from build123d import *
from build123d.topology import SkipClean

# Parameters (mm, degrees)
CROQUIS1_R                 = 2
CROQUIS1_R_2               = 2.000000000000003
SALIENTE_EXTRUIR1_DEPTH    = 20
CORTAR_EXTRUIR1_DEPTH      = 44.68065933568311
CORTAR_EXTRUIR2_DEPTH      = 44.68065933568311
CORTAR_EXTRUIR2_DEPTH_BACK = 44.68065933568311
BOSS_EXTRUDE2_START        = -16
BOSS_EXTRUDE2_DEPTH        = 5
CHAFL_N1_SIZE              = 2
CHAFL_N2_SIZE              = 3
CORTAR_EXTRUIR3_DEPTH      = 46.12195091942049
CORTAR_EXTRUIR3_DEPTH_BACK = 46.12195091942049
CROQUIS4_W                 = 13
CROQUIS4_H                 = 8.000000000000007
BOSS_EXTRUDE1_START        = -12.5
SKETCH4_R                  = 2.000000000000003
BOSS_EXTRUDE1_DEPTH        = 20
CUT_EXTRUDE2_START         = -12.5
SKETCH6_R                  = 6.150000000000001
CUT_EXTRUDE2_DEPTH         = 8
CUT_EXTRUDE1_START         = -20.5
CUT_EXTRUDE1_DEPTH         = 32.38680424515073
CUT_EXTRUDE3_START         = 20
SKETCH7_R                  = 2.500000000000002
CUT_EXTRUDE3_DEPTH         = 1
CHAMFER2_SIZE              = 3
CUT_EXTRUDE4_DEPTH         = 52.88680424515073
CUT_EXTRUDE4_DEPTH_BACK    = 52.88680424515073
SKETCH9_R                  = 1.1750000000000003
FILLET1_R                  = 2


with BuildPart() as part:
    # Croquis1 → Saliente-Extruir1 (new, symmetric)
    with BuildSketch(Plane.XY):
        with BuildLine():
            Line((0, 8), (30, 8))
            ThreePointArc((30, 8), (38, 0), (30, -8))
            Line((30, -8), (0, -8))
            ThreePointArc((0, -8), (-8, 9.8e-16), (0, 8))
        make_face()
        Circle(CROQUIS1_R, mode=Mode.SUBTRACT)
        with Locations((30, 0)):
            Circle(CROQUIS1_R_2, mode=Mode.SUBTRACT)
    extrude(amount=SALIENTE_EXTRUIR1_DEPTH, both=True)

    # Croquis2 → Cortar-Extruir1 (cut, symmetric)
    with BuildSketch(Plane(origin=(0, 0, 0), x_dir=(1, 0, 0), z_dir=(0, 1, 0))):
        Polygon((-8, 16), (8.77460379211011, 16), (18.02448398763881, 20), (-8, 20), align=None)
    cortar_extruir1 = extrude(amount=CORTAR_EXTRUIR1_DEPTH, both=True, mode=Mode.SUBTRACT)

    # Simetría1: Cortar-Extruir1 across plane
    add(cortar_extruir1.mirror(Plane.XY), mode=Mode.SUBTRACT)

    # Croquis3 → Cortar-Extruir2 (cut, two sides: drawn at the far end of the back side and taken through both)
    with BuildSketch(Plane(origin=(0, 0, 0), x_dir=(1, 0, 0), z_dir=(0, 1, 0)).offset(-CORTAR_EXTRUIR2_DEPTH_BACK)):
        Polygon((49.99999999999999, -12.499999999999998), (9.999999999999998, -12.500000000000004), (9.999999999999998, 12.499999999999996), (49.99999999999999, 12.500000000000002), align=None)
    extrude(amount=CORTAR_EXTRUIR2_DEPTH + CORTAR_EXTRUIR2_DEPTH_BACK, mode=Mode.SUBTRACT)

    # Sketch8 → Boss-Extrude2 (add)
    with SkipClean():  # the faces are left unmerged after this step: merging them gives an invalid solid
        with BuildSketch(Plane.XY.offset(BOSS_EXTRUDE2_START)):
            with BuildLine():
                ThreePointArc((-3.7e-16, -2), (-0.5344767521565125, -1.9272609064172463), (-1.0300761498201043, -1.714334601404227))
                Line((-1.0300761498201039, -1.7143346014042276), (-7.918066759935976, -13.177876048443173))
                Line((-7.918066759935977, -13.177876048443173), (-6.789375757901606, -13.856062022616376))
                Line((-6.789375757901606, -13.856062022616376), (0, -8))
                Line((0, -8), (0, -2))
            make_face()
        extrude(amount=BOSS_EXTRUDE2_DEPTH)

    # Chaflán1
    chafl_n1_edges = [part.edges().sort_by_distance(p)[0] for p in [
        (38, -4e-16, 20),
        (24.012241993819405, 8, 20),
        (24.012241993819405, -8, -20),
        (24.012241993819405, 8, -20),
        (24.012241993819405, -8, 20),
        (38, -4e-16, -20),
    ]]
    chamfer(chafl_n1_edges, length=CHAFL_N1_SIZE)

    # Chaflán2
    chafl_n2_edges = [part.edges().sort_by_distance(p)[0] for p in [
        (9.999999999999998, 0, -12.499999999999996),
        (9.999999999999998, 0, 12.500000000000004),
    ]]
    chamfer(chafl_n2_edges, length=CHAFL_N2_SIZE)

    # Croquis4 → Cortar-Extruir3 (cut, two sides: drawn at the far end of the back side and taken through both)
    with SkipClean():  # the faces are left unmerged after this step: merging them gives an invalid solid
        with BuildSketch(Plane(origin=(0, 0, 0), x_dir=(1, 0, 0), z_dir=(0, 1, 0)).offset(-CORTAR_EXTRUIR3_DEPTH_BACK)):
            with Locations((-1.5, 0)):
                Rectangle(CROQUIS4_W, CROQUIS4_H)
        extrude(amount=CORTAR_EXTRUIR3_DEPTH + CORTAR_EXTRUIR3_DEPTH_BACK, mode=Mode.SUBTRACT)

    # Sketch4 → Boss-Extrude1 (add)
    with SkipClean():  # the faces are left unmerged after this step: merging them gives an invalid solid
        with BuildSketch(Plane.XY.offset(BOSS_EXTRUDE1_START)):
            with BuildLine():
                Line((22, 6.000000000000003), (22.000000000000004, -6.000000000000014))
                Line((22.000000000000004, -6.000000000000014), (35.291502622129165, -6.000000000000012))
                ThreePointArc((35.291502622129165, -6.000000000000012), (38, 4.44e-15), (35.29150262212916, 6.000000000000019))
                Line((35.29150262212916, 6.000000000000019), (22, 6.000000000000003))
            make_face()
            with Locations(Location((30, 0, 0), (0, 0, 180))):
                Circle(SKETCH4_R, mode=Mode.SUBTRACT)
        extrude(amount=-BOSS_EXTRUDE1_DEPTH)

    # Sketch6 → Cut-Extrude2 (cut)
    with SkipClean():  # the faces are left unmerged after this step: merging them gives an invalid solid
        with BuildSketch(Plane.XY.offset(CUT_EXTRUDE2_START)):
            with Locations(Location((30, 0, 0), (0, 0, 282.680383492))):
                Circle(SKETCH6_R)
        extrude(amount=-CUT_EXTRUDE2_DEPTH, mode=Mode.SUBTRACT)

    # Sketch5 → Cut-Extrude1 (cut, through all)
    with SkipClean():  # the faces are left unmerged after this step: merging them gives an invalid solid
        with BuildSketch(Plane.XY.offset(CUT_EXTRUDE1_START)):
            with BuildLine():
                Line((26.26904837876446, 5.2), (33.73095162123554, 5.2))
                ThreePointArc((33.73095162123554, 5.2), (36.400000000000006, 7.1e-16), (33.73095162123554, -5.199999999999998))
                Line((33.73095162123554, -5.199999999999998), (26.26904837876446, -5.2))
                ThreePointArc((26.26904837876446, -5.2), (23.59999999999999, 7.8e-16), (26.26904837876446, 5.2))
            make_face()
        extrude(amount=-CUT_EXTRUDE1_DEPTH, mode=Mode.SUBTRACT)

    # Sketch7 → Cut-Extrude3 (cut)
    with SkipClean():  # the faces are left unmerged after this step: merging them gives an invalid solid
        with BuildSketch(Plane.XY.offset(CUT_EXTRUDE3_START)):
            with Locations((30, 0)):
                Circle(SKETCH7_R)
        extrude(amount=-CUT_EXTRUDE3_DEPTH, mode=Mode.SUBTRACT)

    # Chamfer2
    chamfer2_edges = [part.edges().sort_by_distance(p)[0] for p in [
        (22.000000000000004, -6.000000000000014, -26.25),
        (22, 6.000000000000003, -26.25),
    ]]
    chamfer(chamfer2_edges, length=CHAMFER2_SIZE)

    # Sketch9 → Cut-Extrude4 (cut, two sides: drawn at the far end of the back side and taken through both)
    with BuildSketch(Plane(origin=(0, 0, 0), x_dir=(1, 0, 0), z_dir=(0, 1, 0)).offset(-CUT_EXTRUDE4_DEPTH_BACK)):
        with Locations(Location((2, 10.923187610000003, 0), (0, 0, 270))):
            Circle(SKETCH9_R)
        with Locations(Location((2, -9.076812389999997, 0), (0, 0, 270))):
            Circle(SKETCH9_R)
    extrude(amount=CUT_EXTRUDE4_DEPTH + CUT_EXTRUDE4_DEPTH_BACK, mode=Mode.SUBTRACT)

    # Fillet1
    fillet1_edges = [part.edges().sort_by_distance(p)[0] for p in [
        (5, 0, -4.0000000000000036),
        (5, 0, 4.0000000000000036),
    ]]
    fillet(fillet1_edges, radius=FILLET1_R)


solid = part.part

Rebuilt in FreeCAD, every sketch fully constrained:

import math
import FreeCAD as App
import Part
import Sketcher
from FreeCAD import Vector
Q = App.Units.Quantity


def edges_at(feature, points):
    """Names of the edges that pass closest to the given points."""
    edges = feature.Shape.Edges
    near = lambda p: min(range(len(edges)), key=lambda i: edges[i].distToShape(Part.Vertex(*p))[0])
    return sorted({f"Edge{near(p) + 1}" for p in points})

doc = App.newDocument("Part")
body = doc.addObject("PartDesign::Body", "Body")

# Sketch on XY plane
sketch1 = body.newObject("Sketcher::SketchObject", "Sketch")
sketch1.AttachmentSupport = (doc.getObject("XY_Plane"), [""])
sketch1.MapMode = "FlatFace"
sketch1.addGeometry(Part.LineSegment(Vector(30, 8, 0), Vector(0, 8, 0)), False)
sketch1.addGeometry(Part.ArcOfCircle(Part.Circle(Vector(0, 0, 0), Vector(0, 0, 1), 8), math.radians(90), math.radians(270)), False)
sketch1.addGeometry(Part.LineSegment(Vector(0, -8, 0), Vector(30, -8, 0)), False)
sketch1.addGeometry(Part.ArcOfCircle(Part.Circle(Vector(30, 0, 0), Vector(0, 0, 1), 8), math.radians(-90), math.radians(90)), False)
sketch1.addGeometry(Part.Circle(Vector(30, 0, 0), Vector(0, 0, 1), 2), False)
sketch1.addGeometry(Part.Circle(Vector(0, 0, 0), Vector(0, 0, 1), 2), False)
sketch1.addConstraint(Sketcher.Constraint("Tangent", 0, 2, 1, 1))
sketch1.addConstraint(Sketcher.Constraint("Tangent", 1, 2, 2, 1))
sketch1.addConstraint(Sketcher.Constraint("Tangent", 2, 2, 3, 1))
sketch1.addConstraint(Sketcher.Constraint("Tangent", 3, 2, 0, 1))
sketch1.addConstraint(Sketcher.Constraint("Horizontal", 0))
sketch1.addConstraint(Sketcher.Constraint("Horizontal", 2))
sketch1.addConstraint(Sketcher.Constraint("Coincident", 1, 3, -1, 1))
sketch1.addConstraint(Sketcher.Constraint("Coincident", 5, 3, -1, 1))
sketch1.addConstraint(Sketcher.Constraint("Coincident", 4, 3, 3, 3))
sketch1.addConstraint(Sketcher.Constraint("Equal", 4, 5))
sketch1.addConstraint(Sketcher.Constraint("Diameter", 4, Q("4 mm")))
sketch1.addConstraint(Sketcher.Constraint("Radius", 1, Q("8 mm")))
sketch1.addConstraint(Sketcher.Constraint("DistanceX", 0, 2, 0, 1, Q("30 mm")))
pad1 = body.newObject("PartDesign::Pad", "Pad")
pad1.Profile = sketch1
pad1.Length = 40
pad1.Midplane = True

# Sketch on XZ plane
sketch2 = body.newObject("Sketcher::SketchObject", "Sketch001")
sketch2.AttachmentSupport = (doc.getObject("XZ_Plane"), [""])
sketch2.MapMode = "FlatFace"
sketch2.addGeometry(Part.LineSegment(Vector(-8, -16, 0), Vector(8.8, -16, 0)), False)
sketch2.addGeometry(Part.LineSegment(Vector(8.8, -16, 0), Vector(18, -20, 0)), False)
sketch2.addGeometry(Part.LineSegment(Vector(18, -20, 0), Vector(-8, -20, 0)), False)
sketch2.addGeometry(Part.LineSegment(Vector(-8, -20, 0), Vector(-8, -16, 0)), False)
sketch2.addConstraint(Sketcher.Constraint("Coincident", 0, 2, 1, 1))
sketch2.addConstraint(Sketcher.Constraint("Coincident", 1, 2, 2, 1))
sketch2.addConstraint(Sketcher.Constraint("Coincident", 2, 2, 3, 1))
sketch2.addConstraint(Sketcher.Constraint("Coincident", 3, 2, 0, 1))
sketch2.addConstraint(Sketcher.Constraint("Horizontal", 0))
sketch2.addConstraint(Sketcher.Constraint("Horizontal", 2))
sketch2.addConstraint(Sketcher.Constraint("Vertical", 3))
sketch2.addConstraint(Sketcher.Constraint("DistanceY", 3, 1, 3, 2, Q("4 mm")))
sketch2.addConstraint(Sketcher.Constraint("DistanceY", 0, 2, -1, 1, Q("16 mm")))
sketch2.addConstraint(Sketcher.Constraint("DistanceX", 2, 2, -1, 1, Q("8 mm")))
sketch2.addConstraint(Sketcher.Constraint("DistanceX", 0, 1, 0, 2, Q("16.774604 mm")))
sketch2.addConstraint(Sketcher.Constraint("DistanceX", 2, 2, 2, 1, Q("26.024484 mm")))
pocket1 = body.newObject("PartDesign::Pocket", "Pocket")
pocket1.Profile = sketch2
pocket1.Length = 89.361319
pocket1.Midplane = True
doc.recompute()

mirrored = body.newObject("PartDesign::Mirrored", "Mirrored")
mirrored.Originals = [pocket1]
mirrored.MirrorPlane = (doc.getObject("XY_Plane"), [""])
body.Tip = mirrored

# Sketch on XZ plane
sketch3 = body.newObject("Sketcher::SketchObject", "Sketch002")
sketch3.AttachmentSupport = (doc.getObject("XZ_Plane"), [""])
sketch3.MapMode = "FlatFace"
sketch3.addGeometry(Part.LineSegment(Vector(10, 12, 0), Vector(50, 12, 0)), False)
sketch3.addGeometry(Part.LineSegment(Vector(50, 12, 0), Vector(50, -12, 0)), False)
sketch3.addGeometry(Part.LineSegment(Vector(50, -12, 0), Vector(10, -12, 0)), False)
sketch3.addGeometry(Part.LineSegment(Vector(10, -12, 0), Vector(10, 12, 0)), False)
sketch3.addConstraint(Sketcher.Constraint("Coincident", 0, 2, 1, 1))
sketch3.addConstraint(Sketcher.Constraint("Coincident", 1, 2, 2, 1))
sketch3.addConstraint(Sketcher.Constraint("Coincident", 2, 2, 3, 1))
sketch3.addConstraint(Sketcher.Constraint("Coincident", 3, 2, 0, 1))
sketch3.addConstraint(Sketcher.Constraint("Horizontal", 0))
sketch3.addConstraint(Sketcher.Constraint("Vertical", 1))
sketch3.addConstraint(Sketcher.Constraint("Horizontal", 2))
sketch3.addConstraint(Sketcher.Constraint("Vertical", 3))
sketch3.addConstraint(Sketcher.Constraint("DistanceX", 0, 1, 0, 2, Q("40 mm")))
sketch3.addConstraint(Sketcher.Constraint("DistanceY", 1, 2, 1, 1, Q("25 mm")))
sketch3.addConstraint(Sketcher.Constraint("DistanceX", -1, 1, 0, 2, Q("50 mm")))
sketch3.addConstraint(Sketcher.Constraint("DistanceY", -1, 1, 0, 2, Q("12.5 mm")))
pocket2 = body.newObject("PartDesign::Pocket", "Pocket001")
pocket2.Profile = sketch3
pocket2.Type = "ThroughAll"
pocket2.Midplane = True

# Sketch on XY plane
sketch4 = body.newObject("Sketcher::SketchObject", "Sketch003")
sketch4.AttachmentSupport = (doc.getObject("XY_Plane"), [""])
sketch4.MapMode = "FlatFace"
sketch4.AttachmentOffset = App.Placement(Vector(0, 0, -16), App.Rotation())
sketch4.addGeometry(Part.ArcOfCircle(Part.Circle(Vector(0, 0, 0), Vector(0, 0, 1), 2), math.radians(-121), math.radians(-90)), False)
sketch4.addGeometry(Part.LineSegment(Vector(-1, -1.7, 0), Vector(-7.9, -13.2, 0)), False)
sketch4.addGeometry(Part.LineSegment(Vector(-7.9, -13.2, 0), Vector(-6.8, -13.9, 0)), False)
sketch4.addGeometry(Part.LineSegment(Vector(-6.8, -13.9, 0), Vector(0, -8, 0)), False)
sketch4.addGeometry(Part.LineSegment(Vector(0, -8, 0), Vector(0, -2, 0)), False)
sketch4.addConstraint(Sketcher.Constraint("Coincident", 0, 1, 1, 1))
sketch4.addConstraint(Sketcher.Constraint("Coincident", 1, 2, 2, 1))
sketch4.addConstraint(Sketcher.Constraint("Coincident", 2, 2, 3, 1))
sketch4.addConstraint(Sketcher.Constraint("Coincident", 3, 2, 4, 1))
sketch4.addConstraint(Sketcher.Constraint("Coincident", 4, 2, 0, 2))
sketch4.addConstraint(Sketcher.Constraint("Vertical", 4))
sketch4.addConstraint(Sketcher.Constraint("Coincident", 0, 3, -1, 1))
sketch4.addConstraint(Sketcher.Constraint("PointOnObject", 3, 2, -2))
sketch4.addConstraint(Sketcher.Constraint("Perpendicular", 1, 2))
sketch4.addConstraint(Sketcher.Constraint("Radius", 0, Q("2 mm")))
sketch4.addConstraint(Sketcher.Constraint("DistanceY", 4, 1, 4, 2, Q("6 mm")))
sketch4.addConstraint(Sketcher.Constraint("Angle", 1, Q("-121 deg")))
sketch4.addConstraint(Sketcher.Constraint("DistanceX", 2, 2, 0, 1, Q("5.7593 mm")))
sketch4.addConstraint(Sketcher.Constraint("Distance", 1, Q("13.37375 mm")))
sketch4.addConstraint(Sketcher.Constraint("Distance", 3, Q("8.965996 mm")))
pad2 = body.newObject("PartDesign::Pad", "Pad001")
pad2.Profile = sketch4
pad2.Length = 5
doc.recompute()

chamfer = body.newObject("PartDesign::Chamfer", "Chamfer")
chamfer.Base = (pad2, edges_at(pad2, [
    (38, 0, 20),
    (24.012, 8, 20),
    (24.012, -8, -20),
    (24.012, 8, -20),
    (24.012, -8, 20),
    (38, 0, -20),
]))
chamfer.Size = 2
doc.recompute()

chamfer2 = body.newObject("PartDesign::Chamfer", "Chamfer001")
chamfer2.Base = (chamfer, edges_at(chamfer, [(10, 0, -12.5), (10, 0, 12.5)]))
chamfer2.Size = 3

# Sketch on XZ plane
sketch5 = body.newObject("Sketcher::SketchObject", "Sketch004")
sketch5.AttachmentSupport = (doc.getObject("XZ_Plane"), [""])
sketch5.MapMode = "FlatFace"
sketch5.addGeometry(Part.LineSegment(Vector(-8, -4, 0), Vector(-8, 4, 0)), False)
sketch5.addGeometry(Part.LineSegment(Vector(-8, 4, 0), Vector(5, 4, 0)), False)
sketch5.addGeometry(Part.LineSegment(Vector(5, 4, 0), Vector(5, -4, 0)), False)
sketch5.addGeometry(Part.LineSegment(Vector(5, -4, 0), Vector(-8, -4, 0)), False)
sketch5.addConstraint(Sketcher.Constraint("Coincident", 0, 2, 1, 1))
sketch5.addConstraint(Sketcher.Constraint("Coincident", 1, 2, 2, 1))
sketch5.addConstraint(Sketcher.Constraint("Coincident", 2, 2, 3, 1))
sketch5.addConstraint(Sketcher.Constraint("Coincident", 3, 2, 0, 1))
sketch5.addConstraint(Sketcher.Constraint("Vertical", 0))
sketch5.addConstraint(Sketcher.Constraint("Horizontal", 1))
sketch5.addConstraint(Sketcher.Constraint("Vertical", 2))
sketch5.addConstraint(Sketcher.Constraint("Horizontal", 3))
sketch5.addConstraint(Sketcher.Constraint("DistanceX", 1, 1, 1, 2, Q("13 mm")))
sketch5.addConstraint(Sketcher.Constraint("DistanceY", 0, 1, 0, 2, Q("8 mm")))
sketch5.addConstraint(Sketcher.Constraint("DistanceX", 0, 2, -1, 1, Q("8 mm")))
sketch5.addConstraint(Sketcher.Constraint("DistanceY", -1, 1, 0, 2, Q("4 mm")))
pocket3 = body.newObject("PartDesign::Pocket", "Pocket002")
pocket3.Profile = sketch5
pocket3.Type = "ThroughAll"
pocket3.Midplane = True

# Sketch on XY plane
sketch6 = body.newObject("Sketcher::SketchObject", "Sketch005")
sketch6.AttachmentSupport = (doc.getObject("XY_Plane"), [""])
sketch6.MapMode = "FlatFace"
sketch6.AttachmentOffset = App.Placement(Vector(0, 0, -12.5), App.Rotation())
sketch6.addGeometry(Part.LineSegment(Vector(22, 6, 0), Vector(22, -6, 0)), False)
sketch6.addGeometry(Part.LineSegment(Vector(22, -6, 0), Vector(35.3, -6, 0)), False)
sketch6.addGeometry(Part.ArcOfCircle(Part.Circle(Vector(30, 0, 0), Vector(0, 0, 1), 8), math.radians(-49), math.radians(49)), False)
sketch6.addGeometry(Part.LineSegment(Vector(35.3, 6, 0), Vector(22, 6, 0)), False)
sketch6.addGeometry(Part.Circle(Vector(30, 0, 0), Vector(0, 0, 1), 2), False)
sketch6.addConstraint(Sketcher.Constraint("Coincident", 0, 2, 1, 1))
sketch6.addConstraint(Sketcher.Constraint("Coincident", 1, 2, 2, 1))
sketch6.addConstraint(Sketcher.Constraint("Coincident", 2, 2, 3, 1))
sketch6.addConstraint(Sketcher.Constraint("Coincident", 3, 2, 0, 1))
sketch6.addConstraint(Sketcher.Constraint("Vertical", 0))
sketch6.addConstraint(Sketcher.Constraint("Horizontal", 1))
sketch6.addConstraint(Sketcher.Constraint("Horizontal", 3))
sketch6.addConstraint(Sketcher.Constraint("Coincident", 4, 3, 2, 3))
sketch6.addConstraint(Sketcher.Constraint("Symmetric", 1, 2, 2, 2, -1))
sketch6.addConstraint(Sketcher.Constraint("Diameter", 4, Q("4 mm")))
sketch6.addConstraint(Sketcher.Constraint("Radius", 2, Q("8 mm")))
sketch6.addConstraint(Sketcher.Constraint("DistanceY", 0, 2, 0, 1, Q("12 mm")))
sketch6.addConstraint(Sketcher.Constraint("DistanceX", -1, 1, 2, 3, Q("30 mm")))
sketch6.addConstraint(Sketcher.Constraint("DistanceX", -1, 1, 0, 2, Q("22 mm")))
pad3 = body.newObject("PartDesign::Pad", "Pad002")
pad3.Profile = sketch6
pad3.Length = 20
pad3.Reversed = True

# Sketch on XY plane
sketch7 = body.newObject("Sketcher::SketchObject", "Sketch006")
sketch7.AttachmentSupport = (doc.getObject("XY_Plane"), [""])
sketch7.MapMode = "FlatFace"
sketch7.AttachmentOffset = App.Placement(Vector(0, 0, -12.5), App.Rotation())
sketch7.addGeometry(Part.Circle(Vector(30, 0, 0), Vector(0, 0, 1), 6), False)
sketch7.addConstraint(Sketcher.Constraint("PointOnObject", 0, 3, -1))
sketch7.addConstraint(Sketcher.Constraint("Diameter", 0, Q("12.3 mm")))
sketch7.addConstraint(Sketcher.Constraint("DistanceX", -1, 1, 0, 3, Q("30 mm")))
pocket4 = body.newObject("PartDesign::Pocket", "Pocket003")
pocket4.Profile = sketch7
pocket4.Length = 8

# Sketch on XY plane
sketch8 = body.newObject("Sketcher::SketchObject", "Sketch007")
sketch8.AttachmentSupport = (doc.getObject("XY_Plane"), [""])
sketch8.MapMode = "FlatFace"
sketch8.AttachmentOffset = App.Placement(Vector(0, 0, -20.5), App.Rotation())
sketch8.addGeometry(Part.LineSegment(Vector(34, 5, 0), Vector(26, 5, 0)), False)
sketch8.addGeometry(Part.ArcOfCircle(Part.Circle(Vector(30, 0, 0), Vector(0, 0, 1), 6), math.radians(126), math.radians(234)), False)
sketch8.addGeometry(Part.LineSegment(Vector(26, -5, 0), Vector(34, -5, 0)), False)
sketch8.addGeometry(Part.ArcOfCircle(Part.Circle(Vector(30, 0, 0), Vector(0, 0, 1), 6), math.radians(-54), math.radians(54)), False)
sketch8.addConstraint(Sketcher.Constraint("Coincident", 0, 2, 1, 1))
sketch8.addConstraint(Sketcher.Constraint("Coincident", 1, 2, 2, 1))
sketch8.addConstraint(Sketcher.Constraint("Coincident", 2, 2, 3, 1))
sketch8.addConstraint(Sketcher.Constraint("Coincident", 3, 2, 0, 1))
sketch8.addConstraint(Sketcher.Constraint("Horizontal", 0))
sketch8.addConstraint(Sketcher.Constraint("Horizontal", 2))
sketch8.addConstraint(Sketcher.Constraint("Coincident", 3, 3, 1, 3))
sketch8.addConstraint(Sketcher.Constraint("Equal", 1, 3))
sketch8.addConstraint(Sketcher.Constraint("Symmetric", 0, 2, 1, 2, -1))
sketch8.addConstraint(Sketcher.Constraint("Radius", 1, Q("6.4 mm")))
sketch8.addConstraint(Sketcher.Constraint("DistanceX", -1, 1, 1, 3, Q("30 mm")))
sketch8.addConstraint(Sketcher.Constraint("DistanceY", -1, 1, 0, 2, Q("5.2 mm")))
pocket5 = body.newObject("PartDesign::Pocket", "Pocket004")
pocket5.Profile = sketch8
pocket5.Type = "ThroughAll"

# Sketch on XY plane
sketch9 = body.newObject("Sketcher::SketchObject", "Sketch008")
sketch9.AttachmentSupport = (doc.getObject("XY_Plane"), [""])
sketch9.MapMode = "FlatFace"
sketch9.AttachmentOffset = App.Placement(Vector(0, 0, 20), App.Rotation())
sketch9.addGeometry(Part.Circle(Vector(30, 0, 0), Vector(0, 0, 1), 2.5), False)
sketch9.addConstraint(Sketcher.Constraint("PointOnObject", 0, 3, -1))
sketch9.addConstraint(Sketcher.Constraint("Diameter", 0, Q("5 mm")))
sketch9.addConstraint(Sketcher.Constraint("DistanceX", -1, 1, 0, 3, Q("30 mm")))
pocket6 = body.newObject("PartDesign::Pocket", "Pocket005")
pocket6.Profile = sketch9
pocket6.Length = 1
doc.recompute()

chamfer3 = body.newObject("PartDesign::Chamfer", "Chamfer002")
chamfer3.Base = (pocket6, edges_at(pocket6, [(22, -6, -26.25), (22, 6, -26.25)]))
chamfer3.Size = 3

# Sketch on XZ plane
sketch10 = body.newObject("Sketcher::SketchObject", "Sketch009")
sketch10.AttachmentSupport = (doc.getObject("XZ_Plane"), [""])
sketch10.MapMode = "FlatFace"
sketch10.addGeometry(Part.Circle(Vector(2, -10.9, 0), Vector(0, 0, 1), 1.2), False)
sketch10.addGeometry(Part.Circle(Vector(2, 9.1, 0), Vector(0, 0, 1), 1.2), False)
sketch10.addConstraint(Sketcher.Constraint("Equal", 0, 1))
sketch10.addConstraint(Sketcher.Constraint("Vertical", 0, 3, 1, 3))
sketch10.addConstraint(Sketcher.Constraint("Diameter", 0, Q("2.35 mm")))
sketch10.addConstraint(Sketcher.Constraint("DistanceX", -1, 1, 0, 3, Q("2 mm")))
sketch10.addConstraint(Sketcher.Constraint("DistanceY", 0, 3, 1, 3, Q("20 mm")))
sketch10.addConstraint(Sketcher.Constraint("DistanceY", 0, 3, -1, 1, Q("10.923188 mm")))
pocket7 = body.newObject("PartDesign::Pocket", "Pocket006")
pocket7.Profile = sketch10
pocket7.Type = "ThroughAll"
pocket7.Midplane = True
doc.recompute()

fillet = body.newObject("PartDesign::Fillet", "Fillet")
fillet.Base = (pocket7, edges_at(pocket7, [(5, 0, -4), (5, 0, 4)]))
fillet.Radius = 2

doc.recompute()
